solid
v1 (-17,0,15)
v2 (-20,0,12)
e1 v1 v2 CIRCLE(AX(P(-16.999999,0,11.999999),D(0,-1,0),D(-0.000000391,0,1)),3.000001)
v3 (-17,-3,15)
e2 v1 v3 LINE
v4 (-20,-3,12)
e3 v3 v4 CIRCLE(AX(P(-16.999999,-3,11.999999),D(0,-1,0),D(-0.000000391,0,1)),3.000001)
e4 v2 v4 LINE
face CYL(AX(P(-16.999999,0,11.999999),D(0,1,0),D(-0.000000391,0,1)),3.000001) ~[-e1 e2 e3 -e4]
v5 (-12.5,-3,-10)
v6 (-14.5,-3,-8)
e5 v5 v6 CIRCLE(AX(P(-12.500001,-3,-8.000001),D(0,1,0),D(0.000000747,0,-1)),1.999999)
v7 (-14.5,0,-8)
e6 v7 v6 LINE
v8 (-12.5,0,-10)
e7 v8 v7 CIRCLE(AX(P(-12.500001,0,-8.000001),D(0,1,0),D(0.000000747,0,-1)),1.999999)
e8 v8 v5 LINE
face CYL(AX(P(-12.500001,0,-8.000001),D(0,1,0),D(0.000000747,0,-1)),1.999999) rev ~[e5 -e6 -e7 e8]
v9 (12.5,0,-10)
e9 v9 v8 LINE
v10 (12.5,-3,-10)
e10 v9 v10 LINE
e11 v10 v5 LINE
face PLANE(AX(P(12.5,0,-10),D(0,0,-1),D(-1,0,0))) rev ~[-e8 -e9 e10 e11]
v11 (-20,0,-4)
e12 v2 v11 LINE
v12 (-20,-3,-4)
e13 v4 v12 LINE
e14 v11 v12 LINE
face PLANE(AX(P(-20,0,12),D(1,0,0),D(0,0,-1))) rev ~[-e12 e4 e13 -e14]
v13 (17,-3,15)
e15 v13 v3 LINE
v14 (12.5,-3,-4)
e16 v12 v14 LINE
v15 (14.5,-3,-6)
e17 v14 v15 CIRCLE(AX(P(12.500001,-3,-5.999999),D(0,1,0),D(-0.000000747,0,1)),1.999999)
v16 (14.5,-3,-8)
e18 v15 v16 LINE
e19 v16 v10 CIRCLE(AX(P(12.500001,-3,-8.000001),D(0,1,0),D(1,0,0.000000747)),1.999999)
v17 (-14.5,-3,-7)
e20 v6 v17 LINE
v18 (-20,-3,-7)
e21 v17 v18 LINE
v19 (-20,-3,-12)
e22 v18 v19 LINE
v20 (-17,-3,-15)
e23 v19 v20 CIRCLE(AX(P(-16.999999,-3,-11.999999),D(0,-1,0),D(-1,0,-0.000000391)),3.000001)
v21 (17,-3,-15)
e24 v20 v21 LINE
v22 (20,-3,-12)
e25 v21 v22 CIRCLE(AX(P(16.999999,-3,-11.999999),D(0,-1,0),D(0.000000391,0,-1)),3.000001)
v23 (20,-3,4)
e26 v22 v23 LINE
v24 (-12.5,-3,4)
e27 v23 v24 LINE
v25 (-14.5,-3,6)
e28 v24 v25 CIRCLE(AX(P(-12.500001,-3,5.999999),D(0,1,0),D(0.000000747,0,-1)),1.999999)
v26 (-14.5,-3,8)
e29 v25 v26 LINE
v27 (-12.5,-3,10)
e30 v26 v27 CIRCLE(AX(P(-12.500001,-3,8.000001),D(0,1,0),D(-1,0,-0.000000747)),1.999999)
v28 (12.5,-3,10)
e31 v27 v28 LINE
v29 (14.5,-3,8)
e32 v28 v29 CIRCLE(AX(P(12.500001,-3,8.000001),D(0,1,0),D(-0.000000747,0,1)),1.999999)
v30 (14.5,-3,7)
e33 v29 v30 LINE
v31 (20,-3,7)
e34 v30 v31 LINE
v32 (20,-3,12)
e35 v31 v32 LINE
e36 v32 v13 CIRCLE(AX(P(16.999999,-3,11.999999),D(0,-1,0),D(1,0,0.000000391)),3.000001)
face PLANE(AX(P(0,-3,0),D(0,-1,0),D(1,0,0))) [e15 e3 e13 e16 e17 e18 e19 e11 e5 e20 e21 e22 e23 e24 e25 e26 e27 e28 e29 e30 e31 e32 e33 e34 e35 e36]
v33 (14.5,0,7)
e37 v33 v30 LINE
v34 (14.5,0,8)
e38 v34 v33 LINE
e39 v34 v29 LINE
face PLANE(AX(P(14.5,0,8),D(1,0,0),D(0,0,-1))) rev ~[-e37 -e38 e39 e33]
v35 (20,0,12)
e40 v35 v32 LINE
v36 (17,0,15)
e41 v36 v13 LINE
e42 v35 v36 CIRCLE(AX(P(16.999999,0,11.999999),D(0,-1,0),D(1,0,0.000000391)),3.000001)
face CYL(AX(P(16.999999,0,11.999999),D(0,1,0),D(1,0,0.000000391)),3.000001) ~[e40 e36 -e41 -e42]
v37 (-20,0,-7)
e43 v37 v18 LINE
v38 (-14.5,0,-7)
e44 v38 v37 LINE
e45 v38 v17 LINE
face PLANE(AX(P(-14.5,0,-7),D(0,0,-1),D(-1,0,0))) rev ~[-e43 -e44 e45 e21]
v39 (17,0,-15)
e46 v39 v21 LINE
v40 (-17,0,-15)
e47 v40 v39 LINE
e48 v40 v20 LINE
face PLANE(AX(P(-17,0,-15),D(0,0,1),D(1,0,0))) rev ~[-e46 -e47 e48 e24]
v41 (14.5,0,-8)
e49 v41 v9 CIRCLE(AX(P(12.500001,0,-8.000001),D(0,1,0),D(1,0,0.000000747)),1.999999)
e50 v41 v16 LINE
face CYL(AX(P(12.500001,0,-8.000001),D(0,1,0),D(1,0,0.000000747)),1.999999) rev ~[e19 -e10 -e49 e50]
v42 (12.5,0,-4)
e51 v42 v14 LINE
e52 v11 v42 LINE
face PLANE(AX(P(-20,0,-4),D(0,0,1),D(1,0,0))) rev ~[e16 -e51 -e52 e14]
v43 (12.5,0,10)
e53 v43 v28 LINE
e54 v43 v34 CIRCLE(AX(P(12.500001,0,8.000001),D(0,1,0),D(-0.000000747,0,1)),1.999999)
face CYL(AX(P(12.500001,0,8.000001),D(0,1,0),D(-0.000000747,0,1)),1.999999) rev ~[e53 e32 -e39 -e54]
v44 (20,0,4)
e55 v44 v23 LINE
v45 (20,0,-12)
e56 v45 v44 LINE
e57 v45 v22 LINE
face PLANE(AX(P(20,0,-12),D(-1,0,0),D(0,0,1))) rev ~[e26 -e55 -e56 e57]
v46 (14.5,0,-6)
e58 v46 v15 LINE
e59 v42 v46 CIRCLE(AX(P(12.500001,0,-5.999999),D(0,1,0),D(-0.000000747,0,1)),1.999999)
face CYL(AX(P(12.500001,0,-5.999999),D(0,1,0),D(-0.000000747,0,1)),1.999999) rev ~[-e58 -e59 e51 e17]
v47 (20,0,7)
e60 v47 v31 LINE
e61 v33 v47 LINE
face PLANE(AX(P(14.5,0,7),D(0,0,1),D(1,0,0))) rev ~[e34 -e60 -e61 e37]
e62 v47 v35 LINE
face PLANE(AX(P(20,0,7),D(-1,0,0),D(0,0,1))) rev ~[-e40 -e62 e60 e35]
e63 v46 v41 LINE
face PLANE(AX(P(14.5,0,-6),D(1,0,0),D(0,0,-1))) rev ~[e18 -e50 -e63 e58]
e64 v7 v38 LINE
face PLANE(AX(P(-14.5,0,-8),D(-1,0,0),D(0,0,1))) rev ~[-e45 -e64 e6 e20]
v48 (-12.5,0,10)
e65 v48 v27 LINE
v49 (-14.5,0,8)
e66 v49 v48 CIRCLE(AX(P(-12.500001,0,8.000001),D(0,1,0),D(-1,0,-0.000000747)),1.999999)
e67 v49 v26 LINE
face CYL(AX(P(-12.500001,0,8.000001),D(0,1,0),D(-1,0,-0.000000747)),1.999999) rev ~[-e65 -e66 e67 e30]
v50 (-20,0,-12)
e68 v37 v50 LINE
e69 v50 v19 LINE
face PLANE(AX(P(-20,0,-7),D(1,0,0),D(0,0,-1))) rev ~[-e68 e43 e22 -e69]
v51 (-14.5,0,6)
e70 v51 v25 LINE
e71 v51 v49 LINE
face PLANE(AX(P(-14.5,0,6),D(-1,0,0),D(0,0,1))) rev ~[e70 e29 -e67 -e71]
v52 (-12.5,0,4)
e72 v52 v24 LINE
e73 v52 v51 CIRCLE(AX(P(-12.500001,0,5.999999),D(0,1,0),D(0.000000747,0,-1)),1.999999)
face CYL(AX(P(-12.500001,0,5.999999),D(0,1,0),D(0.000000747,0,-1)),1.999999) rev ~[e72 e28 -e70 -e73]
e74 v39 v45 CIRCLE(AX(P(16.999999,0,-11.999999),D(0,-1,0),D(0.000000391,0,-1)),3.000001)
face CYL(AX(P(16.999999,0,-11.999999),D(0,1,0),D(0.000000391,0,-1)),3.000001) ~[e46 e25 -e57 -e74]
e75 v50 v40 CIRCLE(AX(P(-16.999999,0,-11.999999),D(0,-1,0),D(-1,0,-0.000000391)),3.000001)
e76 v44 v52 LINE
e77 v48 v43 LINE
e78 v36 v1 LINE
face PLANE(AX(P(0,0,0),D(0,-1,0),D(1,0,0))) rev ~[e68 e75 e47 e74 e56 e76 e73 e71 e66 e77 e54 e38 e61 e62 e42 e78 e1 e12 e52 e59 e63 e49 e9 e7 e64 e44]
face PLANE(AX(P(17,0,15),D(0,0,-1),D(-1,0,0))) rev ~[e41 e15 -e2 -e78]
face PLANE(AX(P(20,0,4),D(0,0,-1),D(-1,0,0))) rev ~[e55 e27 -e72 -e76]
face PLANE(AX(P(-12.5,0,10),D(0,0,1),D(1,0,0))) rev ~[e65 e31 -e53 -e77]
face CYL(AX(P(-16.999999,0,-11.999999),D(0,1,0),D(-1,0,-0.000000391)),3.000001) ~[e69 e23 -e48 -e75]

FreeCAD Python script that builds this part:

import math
import FreeCAD as App
import Part
import Sketcher
from FreeCAD import Vector

doc = App.newDocument("Part")
body = doc.addObject("PartDesign::Body", "Body")

sketch1 = body.newObject("Sketcher::SketchObject", "Sketch")
sketch1.AttachmentSupport = (doc.getObject("XZ_Plane"), [""])
sketch1.MapMode = "FlatFace"
sketch1.addGeometry(Part.ArcOfCircle(Part.Circle(Vector(17, 12, 0), Vector(0, 0, 1), 3), math.radians(0), math.radians(90)), False)
sketch1.addGeometry(Part.LineSegment(Vector(17, 15, 0), Vector(-17, 15, 0)), False)
sketch1.addGeometry(Part.ArcOfCircle(Part.Circle(Vector(-17, 12, 0), Vector(0, 0, 1), 3), math.radians(90), math.radians(180)), False)
sketch1.addGeometry(Part.LineSegment(Vector(-20, 12, 0), Vector(-20, -4, 0)), False)
sketch1.addGeometry(Part.LineSegment(Vector(-20, -4, 0), Vector(12.5, -4, 0)), False)
sketch1.addGeometry(Part.ArcOfCircle(Part.Circle(Vector(12.5, -6, 0), Vector(0, 0, 1), 2), math.radians(0), math.radians(90)), False)
sketch1.addGeometry(Part.LineSegment(Vector(14.5, -6, 0), Vector(14.5, -8, 0)), False)
sketch1.addGeometry(Part.ArcOfCircle(Part.Circle(Vector(12.5, -8, 0), Vector(0, 0, 1), 2), math.radians(-90), math.radians(0)), False)
sketch1.addGeometry(Part.LineSegment(Vector(12.5, -10, 0), Vector(-12.5, -10, 0)), False)
sketch1.addGeometry(Part.ArcOfCircle(Part.Circle(Vector(-12.5, -8, 0), Vector(0, 0, 1), 2), math.radians(180), math.radians(270)), False)
sketch1.addGeometry(Part.LineSegment(Vector(-14.5, -8, 0), Vector(-14.5, -7, 0)), False)
sketch1.addGeometry(Part.LineSegment(Vector(-14.5, -7, 0), Vector(-20, -7, 0)), False)
sketch1.addGeometry(Part.LineSegment(Vector(-20, -7, 0), Vector(-20, -12, 0)), False)
sketch1.addGeometry(Part.ArcOfCircle(Part.Circle(Vector(-17, -12, 0), Vector(0, 0, 1), 3), math.radians(-180), math.radians(-90)), False)
sketch1.addGeometry(Part.LineSegment(Vector(-17, -15, 0), Vector(17, -15, 0)), False)
sketch1.addGeometry(Part.ArcOfCircle(Part.Circle(Vector(17, -12, 0), Vector(0, 0, 1), 3), math.radians(-90), math.radians(0)), False)
sketch1.addGeometry(Part.LineSegment(Vector(20, -12, 0), Vector(20, 4, 0)), False)
sketch1.addGeometry(Part.LineSegment(Vector(20, 4, 0), Vector(-12.5, 4, 0)), False)
sketch1.addGeometry(Part.ArcOfCircle(Part.Circle(Vector(-12.5, 6, 0), Vector(0, 0, 1), 2), math.radians(180), math.radians(270)), False)
sketch1.addGeometry(Part.LineSegment(Vector(-14.5, 6, 0), Vector(-14.5, 8, 0)), False)
sketch1.addGeometry(Part.ArcOfCircle(Part.Circle(Vector(-12.5, 8, 0), Vector(0, 0, 1), 2), math.radians(90), math.radians(180)), False)
sketch1.addGeometry(Part.LineSegment(Vector(-12.5, 10, 0), Vector(12.5, 10, 0)), False)
sketch1.addGeometry(Part.ArcOfCircle(Part.Circle(Vector(12.5, 8, 0), Vector(0, 0, 1), 2), math.radians(0), math.radians(90)), False)
sketch1.addGeometry(Part.LineSegment(Vector(14.5, 8, 0), Vector(14.5, 7, 0)), False)
sketch1.addGeometry(Part.LineSegment(Vector(14.5, 7, 0), Vector(20, 7, 0)), False)
sketch1.addGeometry(Part.LineSegment(Vector(20, 7, 0), Vector(20, 12, 0)), False)
sketch1.addConstraint(Sketcher.Constraint("Tangent", 0, 2, 1, 1))
sketch1.addConstraint(Sketcher.Constraint("Tangent", 1, 2, 2, 1))
sketch1.addConstraint(Sketcher.Constraint("Tangent", 2, 2, 3, 1))
sketch1.addConstraint(Sketcher.Constraint("Coincident", 3, 2, 4, 1))
sketch1.addConstraint(Sketcher.Constraint("Tangent", 4, 2, 5, 2))
sketch1.addConstraint(Sketcher.Constraint("Tangent", 5, 1, 6, 1))
sketch1.addConstraint(Sketcher.Constraint("Tangent", 6, 2, 7, 2))
sketch1.addConstraint(Sketcher.Constraint("Tangent", 7, 1, 8, 1))
sketch1.addConstraint(Sketcher.Constraint("Tangent", 8, 2, 9, 2))
sketch1.addConstraint(Sketcher.Constraint("Tangent", 9, 1, 10, 1))
sketch1.addConstraint(Sketcher.Constraint("Coincident", 10, 2, 11, 1))
sketch1.addConstraint(Sketcher.Constraint("Coincident", 11, 2, 12, 1))
sketch1.addConstraint(Sketcher.Constraint("Tangent", 12, 2, 13, 1))
sketch1.addConstraint(Sketcher.Constraint("Tangent", 13, 2, 14, 1))
sketch1.addConstraint(Sketcher.Constraint("Tangent", 14, 2, 15, 1))
sketch1.addConstraint(Sketcher.Constraint("Tangent", 15, 2, 16, 1))
sketch1.addConstraint(Sketcher.Constraint("Coincident", 16, 2, 17, 1))
sketch1.addConstraint(Sketcher.Constraint("Tangent", 17, 2, 18, 2))
sketch1.addConstraint(Sketcher.Constraint("Tangent", 18, 1, 19, 1))
sketch1.addConstraint(Sketcher.Constraint("Tangent", 19, 2, 20, 2))
sketch1.addConstraint(Sketcher.Constraint("Tangent", 20, 1, 21, 1))
sketch1.addConstraint(Sketcher.Constraint("Tangent", 21, 2, 22, 2))
sketch1.addConstraint(Sketcher.Constraint("Tangent", 22, 1, 23, 1))
sketch1.addConstraint(Sketcher.Constraint("Coincident", 23, 2, 24, 1))
sketch1.addConstraint(Sketcher.Constraint("Coincident", 24, 2, 25, 1))
sketch1.addConstraint(Sketcher.Constraint("Tangent", 25, 2, 0, 1))
sketch1.addConstraint(Sketcher.Constraint("Horizontal", 1))
sketch1.addConstraint(Sketcher.Constraint("Vertical", 3))
sketch1.addConstraint(Sketcher.Constraint("Horizontal", 4))
sketch1.addConstraint(Sketcher.Constraint("Vertical", 6))
sketch1.addConstraint(Sketcher.Constraint("Horizontal", 8))
sketch1.addConstraint(Sketcher.Constraint("Vertical", 10))
sketch1.addConstraint(Sketcher.Constraint("Horizontal", 11))
sketch1.addConstraint(Sketcher.Constraint("Vertical", 12))
sketch1.addConstraint(Sketcher.Constraint("Horizontal", 14))
sketch1.addConstraint(Sketcher.Constraint("Vertical", 16))
sketch1.addConstraint(Sketcher.Constraint("Horizontal", 17))
sketch1.addConstraint(Sketcher.Constraint("Vertical", 19))
sketch1.addConstraint(Sketcher.Constraint("Horizontal", 21))
sketch1.addConstraint(Sketcher.Constraint("Vertical", 23))
sketch1.addConstraint(Sketcher.Constraint("Horizontal", 24))
sketch1.addConstraint(Sketcher.Constraint("Vertical", 25))
sketch1.addConstraint(Sketcher.Constraint("Equal", 0, 2))
sketch1.addConstraint(Sketcher.Constraint("Equal", 5, 7))
sketch1.addConstraint(Sketcher.Constraint("Equal", 7, 9))
sketch1.addConstraint(Sketcher.Constraint("Equal", 2, 13))
sketch1.addConstraint(Sketcher.Constraint("Equal", 13, 15))
sketch1.addConstraint(Sketcher.Constraint("Equal", 9, 18))
sketch1.addConstraint(Sketcher.Constraint("Equal", 18, 20))
sketch1.addConstraint(Sketcher.Constraint("Equal", 20, 22))
sketch1.addConstraint(Sketcher.Constraint("Symmetric", 0, 3, 13, 3, -1, 1))
sketch1.addConstraint(Sketcher.Constraint("Symmetric", 5, 3, 18, 3, -1, 1))
sketch1.addConstraint(Sketcher.Constraint("Symmetric", 9, 3, 22, 3, -1, 1))
sketch1.addConstraint(Sketcher.Constraint("Vertical", 2, 3, 13, 3))
sketch1.addConstraint(Sketcher.Constraint("Vertical", 0, 3, 15, 3))
sketch1.addConstraint(Sketcher.Constraint("Vertical", 9, 3, 18, 3))
sketch1.addConstraint(Sketcher.Constraint("Equal", 10, 23))
sketch1.addConstraint(Sketcher.Constraint("Radius", 0, 3.000001))
sketch1.addConstraint(Sketcher.Constraint("Radius", 5, 1.999999))
sketch1.addConstraint(Sketcher.Constraint("DistanceX", 1, 2, 1, 1, 34.0))
sketch1.addConstraint(Sketcher.Constraint("DistanceX", 8, 2, 8, 1, 25.0))
sketch1.addConstraint(Sketcher.Constraint("DistanceY", 3, 2, 3, 1, 16.0))
sketch1.addConstraint(Sketcher.Constraint("DistanceY", 6, 2, 6, 1, 2.0))
sketch1.addConstraint(Sketcher.Constraint("DistanceY", 10, 1, 10, 2, 1.0))
sketch1.addConstraint(Sketcher.Constraint("DistanceY", 12, 2, 12, 1, 5.0))
pad1 = body.newObject("PartDesign::Pad", "Pad")
pad1.Profile = sketch1
pad1.Length = 3

doc.recompute()
